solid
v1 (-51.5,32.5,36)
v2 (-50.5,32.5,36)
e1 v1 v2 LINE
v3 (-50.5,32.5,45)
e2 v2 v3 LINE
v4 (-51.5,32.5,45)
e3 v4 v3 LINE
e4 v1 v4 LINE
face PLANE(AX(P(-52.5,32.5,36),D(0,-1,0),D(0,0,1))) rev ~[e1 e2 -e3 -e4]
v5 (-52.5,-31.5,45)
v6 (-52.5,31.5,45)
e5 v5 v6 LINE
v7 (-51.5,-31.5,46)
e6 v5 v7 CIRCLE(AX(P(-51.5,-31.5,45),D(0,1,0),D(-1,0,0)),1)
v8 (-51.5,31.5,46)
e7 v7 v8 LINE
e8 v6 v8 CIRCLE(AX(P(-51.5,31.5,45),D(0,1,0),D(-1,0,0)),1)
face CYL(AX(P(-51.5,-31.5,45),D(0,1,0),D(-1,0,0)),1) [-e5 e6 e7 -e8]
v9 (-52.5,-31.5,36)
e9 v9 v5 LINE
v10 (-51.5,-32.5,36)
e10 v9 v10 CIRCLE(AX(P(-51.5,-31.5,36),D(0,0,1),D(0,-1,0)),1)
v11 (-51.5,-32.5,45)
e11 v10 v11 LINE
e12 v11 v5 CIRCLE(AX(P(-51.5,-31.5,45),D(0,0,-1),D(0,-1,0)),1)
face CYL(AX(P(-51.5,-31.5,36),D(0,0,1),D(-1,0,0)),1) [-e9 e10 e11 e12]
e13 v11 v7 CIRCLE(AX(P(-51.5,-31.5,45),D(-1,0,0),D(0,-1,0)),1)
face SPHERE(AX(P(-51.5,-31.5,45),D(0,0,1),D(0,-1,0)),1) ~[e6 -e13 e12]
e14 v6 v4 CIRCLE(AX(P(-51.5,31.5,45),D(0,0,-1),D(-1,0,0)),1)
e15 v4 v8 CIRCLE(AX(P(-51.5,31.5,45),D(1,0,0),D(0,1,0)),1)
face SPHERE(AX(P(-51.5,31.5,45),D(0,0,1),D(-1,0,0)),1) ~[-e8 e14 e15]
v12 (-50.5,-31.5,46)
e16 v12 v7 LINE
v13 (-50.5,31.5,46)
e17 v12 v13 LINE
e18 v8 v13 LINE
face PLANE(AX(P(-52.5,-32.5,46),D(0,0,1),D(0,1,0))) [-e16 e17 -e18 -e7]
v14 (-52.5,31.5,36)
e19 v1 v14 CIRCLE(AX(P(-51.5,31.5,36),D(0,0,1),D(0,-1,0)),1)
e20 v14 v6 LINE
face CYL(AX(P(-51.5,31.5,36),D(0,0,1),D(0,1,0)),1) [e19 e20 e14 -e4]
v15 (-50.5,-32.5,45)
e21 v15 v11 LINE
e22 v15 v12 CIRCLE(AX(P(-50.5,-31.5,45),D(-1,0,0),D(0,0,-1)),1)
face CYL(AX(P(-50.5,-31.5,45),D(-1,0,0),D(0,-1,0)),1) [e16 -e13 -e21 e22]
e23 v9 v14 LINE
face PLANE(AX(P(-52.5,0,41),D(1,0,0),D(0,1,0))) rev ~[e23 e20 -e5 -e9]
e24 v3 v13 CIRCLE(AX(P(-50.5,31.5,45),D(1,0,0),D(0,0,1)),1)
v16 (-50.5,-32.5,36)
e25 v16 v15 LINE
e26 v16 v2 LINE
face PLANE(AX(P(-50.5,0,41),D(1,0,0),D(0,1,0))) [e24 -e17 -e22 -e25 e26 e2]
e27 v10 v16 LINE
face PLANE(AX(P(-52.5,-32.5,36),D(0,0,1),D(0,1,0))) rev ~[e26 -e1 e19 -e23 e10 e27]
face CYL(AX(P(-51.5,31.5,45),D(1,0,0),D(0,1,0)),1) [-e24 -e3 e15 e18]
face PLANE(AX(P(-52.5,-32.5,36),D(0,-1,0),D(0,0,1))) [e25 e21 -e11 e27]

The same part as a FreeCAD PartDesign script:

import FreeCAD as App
import Part
import Sketcher
from FreeCAD import Vector
Q = App.Units.Quantity


def edges_at(feature, points):
    """Names of the edges that pass closest to the given points."""
    edges = feature.Shape.Edges
    near = lambda p: min(range(len(edges)), key=lambda i: edges[i].distToShape(Part.Vertex(*p))[0])
    return sorted({f"Edge{near(p) + 1}" for p in points})

doc = App.newDocument("Part")
body = doc.addObject("PartDesign::Body", "Body")

sketch1 = body.newObject("Sketcher::SketchObject", "Sketch")
sketch1.AttachmentSupport = (doc.getObject("YZ_Plane"), [""])
sketch1.MapMode = "FlatFace"
sketch1.addGeometry([
    Part.LineSegment(Vector(-32, 10, 0), Vector(-32, 0, 0)),
    Part.LineSegment(Vector(-32, 0, 0), Vector(32, 0, 0)),
    Part.LineSegment(Vector(32, 0, 0), Vector(32, 10, 0)),
    Part.LineSegment(Vector(32, 10, 0), Vector(-32, 10, 0)),
], False)
sketch1.addConstraint([
    Sketcher.Constraint("Coincident", 0, 2, 1, 1),
    Sketcher.Constraint("Coincident", 1, 2, 2, 1),
    Sketcher.Constraint("Coincident", 2, 2, 3, 1),
    Sketcher.Constraint("Coincident", 3, 2, 0, 1),
    Sketcher.Constraint("Vertical", 0),
    Sketcher.Constraint("Horizontal", 1),
    Sketcher.Constraint("Vertical", 2),
    Sketcher.Constraint("Horizontal", 3),
    Sketcher.Constraint("Symmetric", 0, 2, 1, 2, -1, 1),
    Sketcher.Constraint("DistanceX", 1, 1, 1, 2, Q("65 mm")),
    Sketcher.Constraint("DistanceY", 0, 2, 0, 1, Q("10 mm")),
])
pad1 = body.newObject("PartDesign::Pad", "Pad")
pad1.Profile = sketch1
pad1.Length = 2
doc.recompute()

fillet = body.newObject("PartDesign::Fillet", "Fillet")
fillet.Base = (pad1, edges_at(pad1, [(0, 32.5, 5)]))
fillet.Radius = 1
doc.recompute()

fillet2 = body.newObject("PartDesign::Fillet", "Fillet001")
fillet2.Base = (fillet, edges_at(fillet, [(0, -32.5, 5)]))
fillet2.Radius = 1
doc.recompute()

fillet3 = body.newObject("PartDesign::Fillet", "Fillet002")
fillet3.Base = (fillet2, edges_at(fillet2, [(0, 0, 10)]))
fillet3.Radius = 1
body2 = doc.addObject("PartDesign::Body", "Body001")
doc.recompute()

body.Placement = App.Placement(Vector(-52.5, 0, 36), App.Rotation(Vector(0, 0, 1), 0))
boolean = body2.newObject("PartDesign::Boolean", "Boolean")
boolean.Type = "Fuse"
boolean.addObjects([body])

doc.recompute()
